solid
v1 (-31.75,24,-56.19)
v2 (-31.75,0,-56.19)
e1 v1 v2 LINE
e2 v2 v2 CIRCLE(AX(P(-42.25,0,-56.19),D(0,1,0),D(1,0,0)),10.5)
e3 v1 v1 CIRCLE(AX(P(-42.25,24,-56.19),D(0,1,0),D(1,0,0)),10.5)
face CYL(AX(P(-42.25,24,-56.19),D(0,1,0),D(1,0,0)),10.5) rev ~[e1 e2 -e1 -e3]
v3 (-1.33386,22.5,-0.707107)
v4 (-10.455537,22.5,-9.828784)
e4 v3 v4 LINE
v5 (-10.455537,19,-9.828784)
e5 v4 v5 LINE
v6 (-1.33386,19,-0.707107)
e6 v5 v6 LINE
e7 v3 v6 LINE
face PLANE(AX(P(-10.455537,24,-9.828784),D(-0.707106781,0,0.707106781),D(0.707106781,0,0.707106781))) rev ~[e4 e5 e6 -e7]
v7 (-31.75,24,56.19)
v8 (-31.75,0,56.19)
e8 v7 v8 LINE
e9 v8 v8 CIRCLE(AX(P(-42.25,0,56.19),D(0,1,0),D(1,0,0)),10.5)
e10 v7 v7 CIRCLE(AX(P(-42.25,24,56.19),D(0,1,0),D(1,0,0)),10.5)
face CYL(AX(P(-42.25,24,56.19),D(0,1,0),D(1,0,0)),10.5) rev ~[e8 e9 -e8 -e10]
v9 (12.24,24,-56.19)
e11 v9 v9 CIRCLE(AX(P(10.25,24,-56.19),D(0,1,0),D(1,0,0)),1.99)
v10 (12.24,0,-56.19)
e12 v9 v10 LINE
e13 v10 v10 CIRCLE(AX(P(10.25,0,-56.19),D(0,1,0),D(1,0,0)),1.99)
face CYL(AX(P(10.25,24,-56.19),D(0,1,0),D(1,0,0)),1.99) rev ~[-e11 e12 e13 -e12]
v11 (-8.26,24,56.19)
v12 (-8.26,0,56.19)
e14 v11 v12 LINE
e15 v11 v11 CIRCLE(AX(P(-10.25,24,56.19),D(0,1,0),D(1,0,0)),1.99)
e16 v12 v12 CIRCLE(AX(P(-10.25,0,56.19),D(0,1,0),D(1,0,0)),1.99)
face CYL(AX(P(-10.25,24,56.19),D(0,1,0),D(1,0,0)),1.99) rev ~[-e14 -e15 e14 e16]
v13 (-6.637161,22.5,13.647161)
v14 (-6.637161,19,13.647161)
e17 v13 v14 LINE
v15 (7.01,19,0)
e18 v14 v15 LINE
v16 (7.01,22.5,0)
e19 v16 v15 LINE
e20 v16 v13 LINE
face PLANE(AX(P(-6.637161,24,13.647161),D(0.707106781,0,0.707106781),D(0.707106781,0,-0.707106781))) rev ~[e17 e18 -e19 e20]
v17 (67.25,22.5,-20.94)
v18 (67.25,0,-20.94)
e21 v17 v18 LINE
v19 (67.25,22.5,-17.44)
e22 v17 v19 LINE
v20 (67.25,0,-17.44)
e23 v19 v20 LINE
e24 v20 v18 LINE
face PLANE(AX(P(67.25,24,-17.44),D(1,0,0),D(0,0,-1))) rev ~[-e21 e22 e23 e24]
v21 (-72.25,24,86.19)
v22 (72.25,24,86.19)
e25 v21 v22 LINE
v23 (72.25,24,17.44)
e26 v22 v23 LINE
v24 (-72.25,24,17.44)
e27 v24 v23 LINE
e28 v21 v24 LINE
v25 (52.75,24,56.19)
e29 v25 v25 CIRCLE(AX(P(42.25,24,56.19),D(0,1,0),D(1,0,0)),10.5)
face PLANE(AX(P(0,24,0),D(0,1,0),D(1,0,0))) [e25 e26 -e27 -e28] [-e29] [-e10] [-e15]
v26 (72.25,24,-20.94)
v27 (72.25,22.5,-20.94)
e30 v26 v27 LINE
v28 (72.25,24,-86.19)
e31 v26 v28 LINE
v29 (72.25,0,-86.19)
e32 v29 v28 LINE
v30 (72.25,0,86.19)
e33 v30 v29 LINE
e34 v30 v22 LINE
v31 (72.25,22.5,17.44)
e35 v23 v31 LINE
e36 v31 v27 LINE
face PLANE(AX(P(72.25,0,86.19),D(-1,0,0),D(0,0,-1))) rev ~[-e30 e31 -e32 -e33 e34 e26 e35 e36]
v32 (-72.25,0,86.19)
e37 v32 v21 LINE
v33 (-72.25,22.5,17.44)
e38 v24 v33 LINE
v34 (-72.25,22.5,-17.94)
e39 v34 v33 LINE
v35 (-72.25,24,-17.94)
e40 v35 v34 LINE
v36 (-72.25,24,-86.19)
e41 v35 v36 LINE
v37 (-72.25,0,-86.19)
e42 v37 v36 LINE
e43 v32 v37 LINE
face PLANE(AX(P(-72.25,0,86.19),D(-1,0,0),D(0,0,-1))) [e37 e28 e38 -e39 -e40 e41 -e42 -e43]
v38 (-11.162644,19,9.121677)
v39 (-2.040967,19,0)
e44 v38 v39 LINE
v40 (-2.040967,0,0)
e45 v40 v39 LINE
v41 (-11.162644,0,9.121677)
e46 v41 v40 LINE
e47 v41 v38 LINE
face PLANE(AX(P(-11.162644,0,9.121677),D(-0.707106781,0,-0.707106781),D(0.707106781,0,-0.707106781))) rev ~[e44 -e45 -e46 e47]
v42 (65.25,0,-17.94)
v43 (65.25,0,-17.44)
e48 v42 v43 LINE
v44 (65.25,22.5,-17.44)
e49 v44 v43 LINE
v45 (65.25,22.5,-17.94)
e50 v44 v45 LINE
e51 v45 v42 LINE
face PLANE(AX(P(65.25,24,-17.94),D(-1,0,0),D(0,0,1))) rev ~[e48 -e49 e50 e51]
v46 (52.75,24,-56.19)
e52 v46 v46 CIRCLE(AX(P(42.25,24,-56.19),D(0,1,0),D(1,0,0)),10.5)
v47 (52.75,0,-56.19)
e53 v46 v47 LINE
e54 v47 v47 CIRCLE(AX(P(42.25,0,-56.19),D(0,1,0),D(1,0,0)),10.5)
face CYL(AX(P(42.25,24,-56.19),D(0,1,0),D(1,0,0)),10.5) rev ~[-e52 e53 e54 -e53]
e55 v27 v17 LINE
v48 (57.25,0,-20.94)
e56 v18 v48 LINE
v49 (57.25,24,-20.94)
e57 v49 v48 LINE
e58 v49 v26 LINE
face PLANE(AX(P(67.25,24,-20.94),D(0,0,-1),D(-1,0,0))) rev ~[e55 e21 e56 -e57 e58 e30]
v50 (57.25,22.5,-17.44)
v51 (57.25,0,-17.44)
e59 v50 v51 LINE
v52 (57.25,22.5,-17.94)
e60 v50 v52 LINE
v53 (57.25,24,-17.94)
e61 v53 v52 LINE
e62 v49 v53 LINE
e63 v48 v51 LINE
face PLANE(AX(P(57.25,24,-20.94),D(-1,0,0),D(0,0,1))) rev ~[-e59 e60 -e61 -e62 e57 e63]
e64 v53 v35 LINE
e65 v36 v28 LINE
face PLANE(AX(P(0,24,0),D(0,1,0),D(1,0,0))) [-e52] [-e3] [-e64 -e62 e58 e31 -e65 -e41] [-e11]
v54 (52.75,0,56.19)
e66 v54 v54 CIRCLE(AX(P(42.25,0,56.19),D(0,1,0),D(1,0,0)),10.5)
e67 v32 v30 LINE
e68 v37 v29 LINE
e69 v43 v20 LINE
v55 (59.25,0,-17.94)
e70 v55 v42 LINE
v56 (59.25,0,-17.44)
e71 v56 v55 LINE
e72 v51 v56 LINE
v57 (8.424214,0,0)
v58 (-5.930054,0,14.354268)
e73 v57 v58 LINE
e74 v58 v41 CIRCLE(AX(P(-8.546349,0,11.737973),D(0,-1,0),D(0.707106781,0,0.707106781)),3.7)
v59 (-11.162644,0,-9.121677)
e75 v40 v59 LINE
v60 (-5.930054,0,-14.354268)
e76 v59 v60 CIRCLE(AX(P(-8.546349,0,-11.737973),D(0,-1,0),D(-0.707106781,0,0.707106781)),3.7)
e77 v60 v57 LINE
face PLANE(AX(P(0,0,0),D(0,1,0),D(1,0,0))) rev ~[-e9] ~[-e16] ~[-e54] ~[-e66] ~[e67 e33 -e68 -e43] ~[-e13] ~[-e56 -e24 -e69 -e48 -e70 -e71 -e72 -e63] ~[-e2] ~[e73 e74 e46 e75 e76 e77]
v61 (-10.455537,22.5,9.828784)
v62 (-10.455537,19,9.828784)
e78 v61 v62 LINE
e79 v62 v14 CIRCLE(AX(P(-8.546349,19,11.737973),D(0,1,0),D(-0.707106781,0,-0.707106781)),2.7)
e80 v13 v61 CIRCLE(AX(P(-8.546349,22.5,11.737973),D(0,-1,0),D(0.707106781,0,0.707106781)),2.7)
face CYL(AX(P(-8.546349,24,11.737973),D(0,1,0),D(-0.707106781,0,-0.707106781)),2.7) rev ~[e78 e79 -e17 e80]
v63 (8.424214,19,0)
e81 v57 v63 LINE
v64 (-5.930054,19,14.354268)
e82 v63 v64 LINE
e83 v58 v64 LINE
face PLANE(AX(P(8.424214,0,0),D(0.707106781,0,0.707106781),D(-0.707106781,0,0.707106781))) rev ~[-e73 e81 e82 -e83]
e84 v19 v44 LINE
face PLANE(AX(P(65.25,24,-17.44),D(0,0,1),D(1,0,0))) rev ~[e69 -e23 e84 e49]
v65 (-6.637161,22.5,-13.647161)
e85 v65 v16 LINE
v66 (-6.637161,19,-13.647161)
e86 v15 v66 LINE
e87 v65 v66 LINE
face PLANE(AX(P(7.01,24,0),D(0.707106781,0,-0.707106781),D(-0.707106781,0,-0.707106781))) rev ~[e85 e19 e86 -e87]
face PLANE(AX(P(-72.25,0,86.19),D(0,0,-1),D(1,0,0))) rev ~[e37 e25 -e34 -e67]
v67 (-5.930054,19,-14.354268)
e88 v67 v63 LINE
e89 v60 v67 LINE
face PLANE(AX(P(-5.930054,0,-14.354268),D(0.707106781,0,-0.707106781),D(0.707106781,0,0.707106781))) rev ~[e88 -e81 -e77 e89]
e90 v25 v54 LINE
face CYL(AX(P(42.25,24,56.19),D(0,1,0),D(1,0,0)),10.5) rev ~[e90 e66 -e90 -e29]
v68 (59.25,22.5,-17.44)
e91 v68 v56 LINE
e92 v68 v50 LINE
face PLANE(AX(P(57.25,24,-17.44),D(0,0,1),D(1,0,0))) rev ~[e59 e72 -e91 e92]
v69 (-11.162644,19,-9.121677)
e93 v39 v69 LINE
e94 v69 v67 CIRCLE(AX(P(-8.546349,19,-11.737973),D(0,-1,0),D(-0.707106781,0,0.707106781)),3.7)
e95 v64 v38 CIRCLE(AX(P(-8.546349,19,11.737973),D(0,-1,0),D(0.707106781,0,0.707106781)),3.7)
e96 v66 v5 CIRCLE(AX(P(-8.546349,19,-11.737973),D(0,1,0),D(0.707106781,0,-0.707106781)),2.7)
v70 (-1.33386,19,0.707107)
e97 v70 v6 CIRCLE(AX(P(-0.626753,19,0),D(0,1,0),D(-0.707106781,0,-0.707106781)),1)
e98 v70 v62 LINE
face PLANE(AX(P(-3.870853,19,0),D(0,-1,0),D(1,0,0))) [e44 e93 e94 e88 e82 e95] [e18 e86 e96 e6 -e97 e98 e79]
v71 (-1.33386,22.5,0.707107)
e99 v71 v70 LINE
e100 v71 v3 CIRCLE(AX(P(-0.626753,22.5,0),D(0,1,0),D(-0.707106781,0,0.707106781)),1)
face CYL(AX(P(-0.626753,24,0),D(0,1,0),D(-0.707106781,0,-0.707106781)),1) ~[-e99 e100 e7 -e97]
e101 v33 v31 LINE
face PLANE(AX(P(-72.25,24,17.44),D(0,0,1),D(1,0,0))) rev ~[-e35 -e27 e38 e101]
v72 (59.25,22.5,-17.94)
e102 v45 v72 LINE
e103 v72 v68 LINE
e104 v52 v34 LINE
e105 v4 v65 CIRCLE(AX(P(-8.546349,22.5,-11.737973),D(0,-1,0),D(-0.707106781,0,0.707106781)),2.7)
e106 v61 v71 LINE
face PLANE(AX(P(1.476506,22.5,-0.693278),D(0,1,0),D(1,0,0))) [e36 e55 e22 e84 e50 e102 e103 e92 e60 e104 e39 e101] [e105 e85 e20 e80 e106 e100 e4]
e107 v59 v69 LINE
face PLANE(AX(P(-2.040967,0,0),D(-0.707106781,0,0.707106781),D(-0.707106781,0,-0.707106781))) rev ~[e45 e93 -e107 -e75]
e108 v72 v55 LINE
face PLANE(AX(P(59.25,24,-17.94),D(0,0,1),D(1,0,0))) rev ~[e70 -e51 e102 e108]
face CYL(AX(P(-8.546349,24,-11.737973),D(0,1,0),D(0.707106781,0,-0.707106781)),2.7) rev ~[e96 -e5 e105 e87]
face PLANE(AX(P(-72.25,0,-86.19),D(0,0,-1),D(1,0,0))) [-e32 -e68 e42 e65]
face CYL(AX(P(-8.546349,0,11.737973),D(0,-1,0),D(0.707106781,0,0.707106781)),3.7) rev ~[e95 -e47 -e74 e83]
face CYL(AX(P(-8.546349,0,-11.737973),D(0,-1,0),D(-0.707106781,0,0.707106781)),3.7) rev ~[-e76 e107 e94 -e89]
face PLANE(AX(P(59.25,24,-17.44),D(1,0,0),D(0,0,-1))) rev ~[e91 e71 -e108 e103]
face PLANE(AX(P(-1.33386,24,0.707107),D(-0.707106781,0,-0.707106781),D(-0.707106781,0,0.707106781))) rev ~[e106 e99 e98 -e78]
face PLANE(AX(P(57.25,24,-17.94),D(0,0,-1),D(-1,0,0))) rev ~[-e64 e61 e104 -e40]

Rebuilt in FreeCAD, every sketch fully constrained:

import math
import FreeCAD as App
import Part
import Sketcher

V = App.Vector

doc = App.newDocument("Part")
body = doc.addObject("PartDesign::Body", "Body")

# Sketch on XZ plane
sketch1 = body.newObject("Sketcher::SketchObject", "Sketch")
sketch1.AttachmentSupport = (doc.getObject("XZ_Plane"), [""])
sketch1.MapMode = "FlatFace"
sketch1.addGeometry([
    Part.LineSegment(V(-72, -86, 0), V(-72, 86, 0)),
    Part.LineSegment(V(-72, 86, 0), V(72, 86, 0)),
    Part.LineSegment(V(72, 86, 0), V(72, -86, 0)),
    Part.LineSegment(V(72, -86, 0), V(-72, -86, 0)),
], False)
sketch1.addConstraint([
    Sketcher.Constraint("Coincident", 0, 2, 1, 1),
    Sketcher.Constraint("Coincident", 1, 2, 2, 1),
    Sketcher.Constraint("Coincident", 2, 2, 3, 1),
    Sketcher.Constraint("Coincident", 3, 2, 0, 1),
    Sketcher.Constraint("Vertical", 0),
    Sketcher.Constraint("Horizontal", 1),
    Sketcher.Constraint("Vertical", 2),
    Sketcher.Constraint("Horizontal", 3),
    Sketcher.Constraint("Symmetric", 0, 2, 2, 2, -1, 1),
    Sketcher.Constraint("DistanceX", 1, 1, 1, 2, 144.5),
    Sketcher.Constraint("DistanceY", 0, 1, 0, 2, 172.38),
])
pad1 = body.newObject("PartDesign::Pad", "Pad")
pad1.Profile = sketch1
pad1.Length = 24
pad1.Reversed = True

# Sketch on XZ plane
sketch2 = body.newObject("Sketcher::SketchObject", "Sketch001")
sketch2.AttachmentSupport = (doc.getObject("XZ_Plane"), [""])
sketch2.MapMode = "FlatFace"
sketch2.AttachmentOffset = App.Placement(V(0, 0, -24), App.Rotation())
sketch2.addGeometry([
    Part.Circle(V(42.2, -56.2, 0), V(0, 0, 1), 10.5),  # 0
    Part.Circle(V(-42.2, -56.2, 0), V(0, 0, 1), 10.5),  # 1
    Part.Circle(V(-42.2, 56.2, 0), V(0, 0, 1), 10.5),  # 2
    Part.Circle(V(42.2, 56.2, 0), V(0, 0, 1), 10.5),  # 3
    Part.Circle(V(10.2, -56.2, 0), V(0, 0, 1), 2),  # 4
    Part.Circle(V(-10.2, 56.2, 0), V(0, 0, 1), 2),  # 5
    Part.LineSegment(V(57.2, -17.4, 0), V(59.2, -17.4, 0)),  # 6
    Part.LineSegment(V(59.2, -17.4, 0), V(59.2, -17.9, 0)),  # 7
    Part.LineSegment(V(59.2, -17.9, 0), V(65.2, -17.9, 0)),  # 8
    Part.LineSegment(V(65.2, -17.9, 0), V(65.2, -17.4, 0)),  # 9
    Part.LineSegment(V(65.2, -17.4, 0), V(67.2, -17.4, 0)),  # 10
    Part.LineSegment(V(67.2, -17.4, 0), V(67.2, -20.9, 0)),  # 11
    Part.LineSegment(V(67.2, -20.9, 0), V(57.2, -20.9, 0)),  # 12
    Part.LineSegment(V(57.2, -20.9, 0), V(57.2, -17.4, 0)),  # 13
    Part.LineSegment(V(-10.5, -9.8, 0), V(-1.3, -0.7, 0)),  # 14
    Part.ArcOfCircle(Part.Circle(V(-0.6, 0, 0), V(0, 0, 1), 1), math.radians(-135), math.radians(135)),  # 15
    Part.LineSegment(V(-1.3, 0.7, 0), V(-10.5, 9.8, 0)),  # 16
    Part.ArcOfCircle(Part.Circle(V(-8.5, 11.7, 0), V(0, 0, 1), 2.7), math.radians(45), math.radians(225)),  # 17
    Part.LineSegment(V(-6.6, 13.6, 0), V(7, 0, 0)),  # 18
    Part.LineSegment(V(7, 0, 0), V(-6.6, -13.6, 0)),  # 19
    Part.ArcOfCircle(Part.Circle(V(-8.5, -11.7, 0), V(0, 0, 1), 2.7), math.radians(135), math.radians(315)),  # 20
], False)
sketch2.addConstraint([
    Sketcher.Constraint("Coincident", 6, 2, 7, 1),
    Sketcher.Constraint("Coincident", 7, 2, 8, 1),
    Sketcher.Constraint("Coincident", 8, 2, 9, 1),
    Sketcher.Constraint("Coincident", 9, 2, 10, 1),
    Sketcher.Constraint("Coincident", 10, 2, 11, 1),
    Sketcher.Constraint("Coincident", 11, 2, 12, 1),
    Sketcher.Constraint("Coincident", 12, 2, 13, 1),
    Sketcher.Constraint("Coincident", 13, 2, 6, 1),
    Sketcher.Constraint("Coincident", 14, 2, 15, 1),
    Sketcher.Constraint("Coincident", 15, 2, 16, 1),
    Sketcher.Constraint("Tangent", 16, 2, 17, 2),
    Sketcher.Constraint("Tangent", 17, 1, 18, 1),
    Sketcher.Constraint("Coincident", 18, 2, 19, 1),
    Sketcher.Constraint("Tangent", 19, 2, 20, 2),
    Sketcher.Constraint("Tangent", 20, 1, 14, 1),
    Sketcher.Constraint("Horizontal", 6),
    Sketcher.Constraint("Vertical", 7),
    Sketcher.Constraint("Horizontal", 8),
    Sketcher.Constraint("Vertical", 9),
    Sketcher.Constraint("Horizontal", 10),
    Sketcher.Constraint("Vertical", 11),
    Sketcher.Constraint("Horizontal", 12),
    Sketcher.Constraint("Vertical", 13),
    Sketcher.Constraint("Equal", 0, 1),
    Sketcher.Constraint("Equal", 1, 2),
    Sketcher.Constraint("Equal", 2, 3),
    Sketcher.Constraint("Equal", 4, 5),
    Sketcher.Constraint("Equal", 17, 20),
    Sketcher.Constraint("Symmetric", 0, 3, 2, 3, -1, 1),
    Sketcher.Constraint("Symmetric", 1, 3, 3, 3, -1, 1),
    Sketcher.Constraint("Symmetric", 4, 3, 5, 3, -1, 1),
    Sketcher.Constraint("Symmetric", 0, 3, 1, 3, -2),
    Sketcher.Constraint("Symmetric", 17, 3, 20, 3, -1),
    Sketcher.Constraint("Symmetric", 14, 2, 15, 2, -1),
    Sketcher.Constraint("PointOnObject", 18, 2, -1),
    Sketcher.Constraint("Perpendicular", 14, 16),
    Sketcher.Constraint("Parallel", 16, 18),
    Sketcher.Constraint("Horizontal", 1, 3, 4, 3),
    Sketcher.Constraint("Horizontal", 6, 2, 9, 2),
    Sketcher.Constraint("Equal", 6, 10),
    Sketcher.Constraint("Diameter", 0, 21.0),
    Sketcher.Constraint("Radius", 15, 1.0),
    Sketcher.Constraint("Radius", 17, 2.7),
    Sketcher.Constraint("Diameter", 4, 3.98),
    Sketcher.Constraint("DistanceX", 6, 1, 6, 2, 2.0),
    Sketcher.Constraint("DistanceX", 8, 1, 8, 2, 6.0),
    Sketcher.Constraint("DistanceY", 7, 2, 7, 1, 0.5),
    Sketcher.Constraint("DistanceY", 11, 2, 11, 1, 3.5),
    Sketcher.Constraint("DistanceX", 4, 3, 0, 3, 32.0),
    Sketcher.Constraint("DistanceX", 0, 3, 6, 2, 17.0),
    Sketcher.Constraint("Distance", 14, 12.9),
    Sketcher.Constraint("Distance", 18, 19.3),
    Sketcher.Constraint("DistanceX", 1, 3, 0, 3, 84.5),
    Sketcher.Constraint("DistanceY", 0, 3, -1, 1, 56.19),
    Sketcher.Constraint("DistanceY", 6, 2, -1, 1, 17.44),
    Sketcher.Constraint("DistanceX", -1, 1, 18, 2, 7.01),
])
pocket1 = body.newObject("PartDesign::Pocket", "Pocket")
pocket1.Profile = sketch2
pocket1.Type = "ThroughAll"
pocket1.Reversed = True

# Sketch on XZ plane
sketch3 = body.newObject("Sketcher::SketchObject", "Sketch002")
sketch3.AttachmentSupport = (doc.getObject("XZ_Plane"), [""])
sketch3.MapMode = "FlatFace"
sketch3.AttachmentOffset = App.Placement(V(0, 0, -24), App.Rotation())
sketch3.addGeometry([
    Part.LineSegment(V(57.2, -17.9, 0), V(-72.2, -17.9, 0)),  # 0
    Part.LineSegment(V(-72.2, -17.9, 0), V(-72.2, 17.4, 0)),  # 1
    Part.LineSegment(V(-72.2, 17.4, 0), V(72.2, 17.4, 0)),  # 2
    Part.LineSegment(V(72.2, 17.4, 0), V(72.2, -20.9, 0)),  # 3
    Part.LineSegment(V(72.2, -20.9, 0), V(67.2, -20.9, 0)),  # 4
    Part.LineSegment(V(67.2, -20.9, 0), V(67.2, -17.4, 0)),  # 5
    Part.LineSegment(V(67.2, -17.4, 0), V(65.2, -17.4, 0)),  # 6
    Part.LineSegment(V(65.2, -17.4, 0), V(65.2, -17.9, 0)),  # 7
    Part.LineSegment(V(65.2, -17.9, 0), V(59.2, -17.9, 0)),  # 8
    Part.LineSegment(V(59.2, -17.9, 0), V(59.2, -17.4, 0)),  # 9
    Part.LineSegment(V(59.2, -17.4, 0), V(57.2, -17.4, 0)),  # 10
    Part.LineSegment(V(57.2, -17.4, 0), V(57.2, -17.9, 0)),  # 11
    Part.LineSegment(V(-10.5, 9.8, 0), V(-1.3, 0.7, 0)),  # 12
    Part.ArcOfCircle(Part.Circle(V(-0.6, 0, 0), V(0, 0, 1), 1), math.radians(-135), math.radians(135)),  # 13
    Part.LineSegment(V(-1.3, -0.7, 0), V(-10.5, -9.8, 0)),  # 14
    Part.ArcOfCircle(Part.Circle(V(-8.5, -11.7, 0), V(0, 0, 1), 2.7), math.radians(135), math.radians(315)),  # 15
    Part.LineSegment(V(-6.6, -13.6, 0), V(7, 0, 0)),  # 16
    Part.LineSegment(V(7, 0, 0), V(-6.6, 13.6, 0)),  # 17
    Part.ArcOfCircle(Part.Circle(V(-8.5, 11.7, 0), V(0, 0, 1), 2.7), math.radians(45), math.radians(225)),  # 18
], False)
sketch3.addConstraint([
    Sketcher.Constraint("Coincident", 0, 2, 1, 1),
    Sketcher.Constraint("Coincident", 1, 2, 2, 1),
    Sketcher.Constraint("Coincident", 2, 2, 3, 1),
    Sketcher.Constraint("Coincident", 3, 2, 4, 1),
    Sketcher.Constraint("Coincident", 4, 2, 5, 1),
    Sketcher.Constraint("Coincident", 5, 2, 6, 1),
    Sketcher.Constraint("Coincident", 6, 2, 7, 1),
    Sketcher.Constraint("Coincident", 7, 2, 8, 1),
    Sketcher.Constraint("Coincident", 8, 2, 9, 1),
    Sketcher.Constraint("Coincident", 9, 2, 10, 1),
    Sketcher.Constraint("Coincident", 10, 2, 11, 1),
    Sketcher.Constraint("Coincident", 11, 2, 0, 1),
    Sketcher.Constraint("Coincident", 12, 2, 13, 2),
    Sketcher.Constraint("Coincident", 13, 1, 14, 1),
    Sketcher.Constraint("Tangent", 14, 2, 15, 1),
    Sketcher.Constraint("Tangent", 15, 2, 16, 1),
    Sketcher.Constraint("Coincident", 16, 2, 17, 1),
    Sketcher.Constraint("Tangent", 17, 2, 18, 1),
    Sketcher.Constraint("Tangent", 18, 2, 12, 1),
    Sketcher.Constraint("Horizontal", 0),
    Sketcher.Constraint("Vertical", 1),
    Sketcher.Constraint("Horizontal", 2),
    Sketcher.Constraint("Vertical", 3),
    Sketcher.Constraint("Horizontal", 4),
    Sketcher.Constraint("Vertical", 5),
    Sketcher.Constraint("Horizontal", 6),
    Sketcher.Constraint("Vertical", 7),
    Sketcher.Constraint("Horizontal", 8),
    Sketcher.Constraint("Vertical", 9),
    Sketcher.Constraint("Horizontal", 10),
    Sketcher.Constraint("Vertical", 11),
    Sketcher.Constraint("Equal", 15, 18),
    Sketcher.Constraint("Symmetric", 15, 3, 18, 3, -1),
    Sketcher.Constraint("Symmetric", 12, 2, 13, 1, -1),
    Sketcher.Constraint("PointOnObject", 16, 2, -1),
    Sketcher.Constraint("Perpendicular", 12, 14),
    Sketcher.Constraint("Parallel", 14, 16),
    Sketcher.Constraint("Horizontal", 0, 2, 7, 2),
    Sketcher.Constraint("Horizontal", 6, 2, 9, 2),
    Sketcher.Constraint("Equal", 6, 10),
    Sketcher.Constraint("Radius", 13, 1.0),
    Sketcher.Constraint("Radius", 15, 2.7),
    Sketcher.Constraint("DistanceX", 4, 2, 4, 1, 5.0),
    Sketcher.Constraint("DistanceX", 6, 2, 6, 1, 2.0),
    Sketcher.Constraint("DistanceX", 8, 2, 8, 1, 6.0),
    Sketcher.Constraint("DistanceX", 0, 2, 0, 1, 129.5),
    Sketcher.Constraint("DistanceY", 5, 1, 5, 2, 3.5),
    Sketcher.Constraint("DistanceY", 7, 2, 7, 1, 0.5),
    Sketcher.Constraint("Distance", 12, 12.9),
    Sketcher.Constraint("Distance", 16, 19.3),
    Sketcher.Constraint("DistanceY", 1, 1, 1, 2, 35.38),
    Sketcher.Constraint("DistanceX", 0, 2, -1, 1, 72.25),
    Sketcher.Constraint("DistanceY", 0, 2, -1, 1, 17.94),
    Sketcher.Constraint("DistanceX", -1, 1, 16, 2, 7.01),
])
pocket2 = body.newObject("PartDesign::Pocket", "Pocket001")
pocket2.Profile = sketch3
pocket2.Length = 1.5
pocket2.Reversed = True

# Sketch on XZ plane
sketch4 = body.newObject("Sketcher::SketchObject", "Sketch003")
sketch4.AttachmentSupport = (doc.getObject("XZ_Plane"), [""])
sketch4.MapMode = "FlatFace"
sketch4.addGeometry([
    Part.LineSegment(V(-2, 0, 0), V(-11.2, -9.1, 0)),  # 0
    Part.ArcOfCircle(Part.Circle(V(-8.5, -11.7, 0), V(0, 0, 1), 3.7), math.radians(135), math.radians(315)),  # 1
    Part.LineSegment(V(-5.9, -14.4, 0), V(8.4, 0, 0)),  # 2
    Part.LineSegment(V(8.4, 0, 0), V(-5.9, 14.4, 0)),  # 3
    Part.ArcOfCircle(Part.Circle(V(-8.5, 11.7, 0), V(0, 0, 1), 3.7), math.radians(45), math.radians(225)),  # 4
    Part.LineSegment(V(-11.2, 9.1, 0), V(-2, 0, 0)),  # 5
], False)
sketch4.addConstraint([
    Sketcher.Constraint("Tangent", 0, 2, 1, 1),
    Sketcher.Constraint("Tangent", 1, 2, 2, 1),
    Sketcher.Constraint("Coincident", 2, 2, 3, 1),
    Sketcher.Constraint("Tangent", 3, 2, 4, 1),
    Sketcher.Constraint("Tangent", 4, 2, 5, 1),
    Sketcher.Constraint("Coincident", 5, 2, 0, 1),
    Sketcher.Constraint("Equal", 1, 4),
    Sketcher.Constraint("Symmetric", 1, 3, 4, 3, -1),
    Sketcher.Constraint("PointOnObject", 2, 2, -1),
    Sketcher.Constraint("PointOnObject", 5, 2, -1),
    Sketcher.Constraint("Parallel", 0, 2),
    Sketcher.Constraint("Perpendicular", 2, 3),
    Sketcher.Constraint("Radius", 1, 3.7),
    Sketcher.Constraint("Distance", 0, 12.9),
    Sketcher.Constraint("DistanceX", 1, 3, -1, 1, 8.546349),
])
pocket3 = body.newObject("PartDesign::Pocket", "Pocket002")
pocket3.Profile = sketch4
pocket3.Length = 19

doc.recompute()
